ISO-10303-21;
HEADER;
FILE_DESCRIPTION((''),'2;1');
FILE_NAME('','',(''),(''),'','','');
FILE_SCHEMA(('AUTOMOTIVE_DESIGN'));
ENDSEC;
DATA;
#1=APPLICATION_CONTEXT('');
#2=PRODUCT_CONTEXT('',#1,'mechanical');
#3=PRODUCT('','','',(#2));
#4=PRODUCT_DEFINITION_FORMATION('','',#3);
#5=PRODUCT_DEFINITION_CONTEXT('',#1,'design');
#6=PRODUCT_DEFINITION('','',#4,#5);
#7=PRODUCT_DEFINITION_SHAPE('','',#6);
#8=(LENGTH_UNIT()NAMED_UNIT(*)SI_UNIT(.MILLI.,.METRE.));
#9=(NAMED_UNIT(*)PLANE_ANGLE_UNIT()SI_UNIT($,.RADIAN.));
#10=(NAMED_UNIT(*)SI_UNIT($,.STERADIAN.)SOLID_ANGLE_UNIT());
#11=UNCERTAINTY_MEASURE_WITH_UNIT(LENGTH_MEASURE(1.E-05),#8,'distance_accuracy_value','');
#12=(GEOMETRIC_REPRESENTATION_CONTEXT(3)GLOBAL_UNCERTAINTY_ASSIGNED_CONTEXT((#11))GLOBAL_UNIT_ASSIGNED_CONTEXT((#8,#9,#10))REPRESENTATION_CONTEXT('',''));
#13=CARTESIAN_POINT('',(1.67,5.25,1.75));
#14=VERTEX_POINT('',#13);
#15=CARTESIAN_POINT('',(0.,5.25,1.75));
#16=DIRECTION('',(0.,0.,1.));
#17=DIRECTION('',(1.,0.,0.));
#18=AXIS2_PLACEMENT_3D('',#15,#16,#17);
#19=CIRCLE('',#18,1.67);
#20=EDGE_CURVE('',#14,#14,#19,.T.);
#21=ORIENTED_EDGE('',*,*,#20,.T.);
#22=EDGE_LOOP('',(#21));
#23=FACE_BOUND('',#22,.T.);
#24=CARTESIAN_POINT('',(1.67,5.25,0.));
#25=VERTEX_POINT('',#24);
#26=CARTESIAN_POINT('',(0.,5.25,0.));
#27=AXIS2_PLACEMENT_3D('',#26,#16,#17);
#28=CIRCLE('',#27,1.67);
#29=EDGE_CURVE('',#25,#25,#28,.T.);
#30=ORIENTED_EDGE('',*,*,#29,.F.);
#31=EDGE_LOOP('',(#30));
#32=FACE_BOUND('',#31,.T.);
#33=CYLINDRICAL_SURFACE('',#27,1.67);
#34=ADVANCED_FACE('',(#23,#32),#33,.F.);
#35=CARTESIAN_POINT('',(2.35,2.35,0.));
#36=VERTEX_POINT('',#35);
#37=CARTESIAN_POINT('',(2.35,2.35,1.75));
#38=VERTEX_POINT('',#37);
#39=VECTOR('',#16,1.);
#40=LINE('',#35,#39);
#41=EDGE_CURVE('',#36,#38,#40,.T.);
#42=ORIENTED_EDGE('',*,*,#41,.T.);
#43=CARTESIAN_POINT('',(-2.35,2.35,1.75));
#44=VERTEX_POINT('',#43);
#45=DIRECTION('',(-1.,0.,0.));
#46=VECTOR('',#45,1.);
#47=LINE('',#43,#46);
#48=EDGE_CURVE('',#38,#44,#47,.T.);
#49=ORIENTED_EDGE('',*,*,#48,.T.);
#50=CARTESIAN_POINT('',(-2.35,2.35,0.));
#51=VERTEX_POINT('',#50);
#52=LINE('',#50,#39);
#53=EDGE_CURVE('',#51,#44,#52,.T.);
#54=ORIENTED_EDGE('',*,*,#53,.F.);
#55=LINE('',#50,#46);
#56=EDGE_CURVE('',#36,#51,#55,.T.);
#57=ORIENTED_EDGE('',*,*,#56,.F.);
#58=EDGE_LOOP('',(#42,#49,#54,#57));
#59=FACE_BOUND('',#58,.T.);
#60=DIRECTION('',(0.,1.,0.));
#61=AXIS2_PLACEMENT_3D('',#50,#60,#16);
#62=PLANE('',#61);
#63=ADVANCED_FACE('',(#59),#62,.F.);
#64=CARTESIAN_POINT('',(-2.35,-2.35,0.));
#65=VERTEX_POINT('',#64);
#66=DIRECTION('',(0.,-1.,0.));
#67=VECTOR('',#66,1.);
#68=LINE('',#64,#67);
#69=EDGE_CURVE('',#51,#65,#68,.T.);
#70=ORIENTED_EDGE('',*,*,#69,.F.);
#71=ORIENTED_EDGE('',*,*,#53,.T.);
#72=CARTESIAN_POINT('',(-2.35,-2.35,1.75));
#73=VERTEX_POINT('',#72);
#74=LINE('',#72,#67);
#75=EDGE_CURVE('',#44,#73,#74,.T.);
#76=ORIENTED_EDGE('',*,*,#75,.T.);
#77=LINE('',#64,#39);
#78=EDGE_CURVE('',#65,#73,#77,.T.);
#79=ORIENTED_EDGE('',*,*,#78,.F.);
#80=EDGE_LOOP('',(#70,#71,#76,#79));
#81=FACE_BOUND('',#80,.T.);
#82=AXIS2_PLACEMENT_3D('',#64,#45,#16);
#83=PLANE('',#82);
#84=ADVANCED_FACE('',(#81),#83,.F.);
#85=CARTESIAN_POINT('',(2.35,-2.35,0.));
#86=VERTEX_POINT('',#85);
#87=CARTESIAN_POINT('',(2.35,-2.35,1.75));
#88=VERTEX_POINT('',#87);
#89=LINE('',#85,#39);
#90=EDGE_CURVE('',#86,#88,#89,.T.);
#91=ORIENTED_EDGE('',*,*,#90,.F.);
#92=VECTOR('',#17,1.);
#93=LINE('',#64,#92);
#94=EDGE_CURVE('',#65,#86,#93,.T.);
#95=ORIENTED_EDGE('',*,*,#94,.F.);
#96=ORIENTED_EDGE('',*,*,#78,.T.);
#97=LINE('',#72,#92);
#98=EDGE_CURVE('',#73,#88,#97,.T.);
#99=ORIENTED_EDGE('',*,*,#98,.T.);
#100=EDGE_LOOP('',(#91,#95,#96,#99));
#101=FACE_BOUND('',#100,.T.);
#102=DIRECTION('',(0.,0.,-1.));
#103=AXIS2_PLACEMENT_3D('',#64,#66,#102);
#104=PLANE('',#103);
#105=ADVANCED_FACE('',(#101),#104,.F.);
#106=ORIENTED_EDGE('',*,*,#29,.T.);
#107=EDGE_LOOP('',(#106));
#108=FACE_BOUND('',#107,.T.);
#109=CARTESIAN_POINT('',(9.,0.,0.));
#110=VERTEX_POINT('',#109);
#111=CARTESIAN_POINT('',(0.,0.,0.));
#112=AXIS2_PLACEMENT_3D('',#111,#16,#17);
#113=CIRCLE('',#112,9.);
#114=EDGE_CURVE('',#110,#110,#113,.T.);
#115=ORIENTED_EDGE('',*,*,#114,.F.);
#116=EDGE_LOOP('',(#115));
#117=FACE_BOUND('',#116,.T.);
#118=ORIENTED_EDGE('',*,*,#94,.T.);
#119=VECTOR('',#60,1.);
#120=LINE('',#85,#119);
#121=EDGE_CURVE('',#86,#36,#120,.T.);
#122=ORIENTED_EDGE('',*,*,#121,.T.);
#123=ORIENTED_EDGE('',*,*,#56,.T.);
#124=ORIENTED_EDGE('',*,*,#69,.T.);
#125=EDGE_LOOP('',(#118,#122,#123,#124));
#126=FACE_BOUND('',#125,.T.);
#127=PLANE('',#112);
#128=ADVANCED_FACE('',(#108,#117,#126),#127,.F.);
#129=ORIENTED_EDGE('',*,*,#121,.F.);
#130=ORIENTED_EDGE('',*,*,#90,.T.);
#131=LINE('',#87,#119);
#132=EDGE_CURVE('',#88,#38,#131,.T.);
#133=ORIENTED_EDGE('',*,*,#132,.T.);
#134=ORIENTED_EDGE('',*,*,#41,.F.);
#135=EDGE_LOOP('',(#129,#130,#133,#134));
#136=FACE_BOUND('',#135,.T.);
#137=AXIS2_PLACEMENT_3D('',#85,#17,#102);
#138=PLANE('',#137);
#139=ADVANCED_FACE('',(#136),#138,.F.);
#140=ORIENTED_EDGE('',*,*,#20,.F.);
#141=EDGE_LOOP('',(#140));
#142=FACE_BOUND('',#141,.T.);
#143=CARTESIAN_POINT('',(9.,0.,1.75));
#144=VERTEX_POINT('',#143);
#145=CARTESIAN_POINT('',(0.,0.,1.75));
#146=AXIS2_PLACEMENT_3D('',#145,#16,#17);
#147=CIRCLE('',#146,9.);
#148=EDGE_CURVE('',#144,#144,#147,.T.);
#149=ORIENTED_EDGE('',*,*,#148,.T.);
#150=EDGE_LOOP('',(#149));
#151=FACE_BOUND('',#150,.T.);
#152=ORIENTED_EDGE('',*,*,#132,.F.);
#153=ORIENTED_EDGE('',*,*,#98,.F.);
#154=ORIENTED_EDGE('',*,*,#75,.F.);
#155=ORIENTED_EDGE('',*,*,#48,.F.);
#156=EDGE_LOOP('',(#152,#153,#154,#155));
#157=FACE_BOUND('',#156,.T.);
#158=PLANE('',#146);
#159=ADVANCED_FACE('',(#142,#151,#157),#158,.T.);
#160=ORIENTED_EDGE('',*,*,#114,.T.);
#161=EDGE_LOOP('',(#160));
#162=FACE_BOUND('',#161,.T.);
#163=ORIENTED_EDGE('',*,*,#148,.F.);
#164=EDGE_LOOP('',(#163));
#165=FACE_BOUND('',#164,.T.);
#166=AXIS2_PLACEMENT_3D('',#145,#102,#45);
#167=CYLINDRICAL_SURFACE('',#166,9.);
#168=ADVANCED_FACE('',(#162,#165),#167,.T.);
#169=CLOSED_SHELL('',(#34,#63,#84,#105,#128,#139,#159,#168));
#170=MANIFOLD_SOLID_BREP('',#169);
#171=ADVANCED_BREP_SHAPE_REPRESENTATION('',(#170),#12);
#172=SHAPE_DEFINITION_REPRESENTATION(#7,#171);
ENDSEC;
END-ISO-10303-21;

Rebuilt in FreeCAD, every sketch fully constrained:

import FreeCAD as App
import Part
import Sketcher

V = App.Vector

doc = App.newDocument("Part")
body = doc.addObject("PartDesign::Body", "Body")

sketch1 = body.newObject("Sketcher::SketchObject", "Sketch")
sketch1.AttachmentSupport = (doc.getObject("XY_Plane"), [""])
sketch1.MapMode = "FlatFace"
sketch1.addGeometry(Part.Circle(V(0, 0, 0), V(0, 0, 1), 9), False)
sketch1.addConstraint(Sketcher.Constraint("Coincident", 0, 3, -1, 1))
sketch1.addConstraint(Sketcher.Constraint("Diameter", 0, 18.0))
pad1 = body.newObject("PartDesign::Pad", "Pad")
pad1.Profile = sketch1
pad1.Length = 1.75

sketch2 = body.newObject("Sketcher::SketchObject", "Sketch001")
sketch2.AttachmentSupport = (doc.getObject("XY_Plane"), [""])
sketch2.MapMode = "FlatFace"
sketch2.AttachmentOffset = App.Placement(V(0, 0, 1.75), App.Rotation())
sketch2.addGeometry(Part.Circle(V(0, 5.2, 0), V(0, 0, 1), 1.7), False)
sketch2.addGeometry(Part.LineSegment(V(-2.4, 2.4, 0), V(-2.4, -2.4, 0)), False)
sketch2.addGeometry(Part.LineSegment(V(-2.4, -2.4, 0), V(2.4, -2.4, 0)), False)
sketch2.addGeometry(Part.LineSegment(V(2.4, -2.4, 0), V(2.4, 2.4, 0)), False)
sketch2.addGeometry(Part.LineSegment(V(2.4, 2.4, 0), V(-2.4, 2.4, 0)), False)
sketch2.addConstraint(Sketcher.Constraint("Coincident", 1, 2, 2, 1))
sketch2.addConstraint(Sketcher.Constraint("Coincident", 2, 2, 3, 1))
sketch2.addConstraint(Sketcher.Constraint("Coincident", 3, 2, 4, 1))
sketch2.addConstraint(Sketcher.Constraint("Coincident", 4, 2, 1, 1))
sketch2.addConstraint(Sketcher.Constraint("Vertical", 1))
sketch2.addConstraint(Sketcher.Constraint("Horizontal", 2))
sketch2.addConstraint(Sketcher.Constraint("Vertical", 3))
sketch2.addConstraint(Sketcher.Constraint("Horizontal", 4))
sketch2.addConstraint(Sketcher.Constraint("Symmetric", 1, 2, 3, 2, -1, 1))
sketch2.addConstraint(Sketcher.Constraint("PointOnObject", 0, 3, -2))
sketch2.addConstraint(Sketcher.Constraint("Equal", 4, 1))
sketch2.addConstraint(Sketcher.Constraint("Diameter", 0, 3.34))
sketch2.addConstraint(Sketcher.Constraint("DistanceX", 2, 1, 2, 2, 4.7))
sketch2.addConstraint(Sketcher.Constraint("DistanceY", 1, 2, 0, 3, 7.6))
pocket1 = body.newObject("PartDesign::Pocket", "Pocket")
pocket1.Profile = sketch2
pocket1.Type = "ThroughAll"

doc.recompute()
